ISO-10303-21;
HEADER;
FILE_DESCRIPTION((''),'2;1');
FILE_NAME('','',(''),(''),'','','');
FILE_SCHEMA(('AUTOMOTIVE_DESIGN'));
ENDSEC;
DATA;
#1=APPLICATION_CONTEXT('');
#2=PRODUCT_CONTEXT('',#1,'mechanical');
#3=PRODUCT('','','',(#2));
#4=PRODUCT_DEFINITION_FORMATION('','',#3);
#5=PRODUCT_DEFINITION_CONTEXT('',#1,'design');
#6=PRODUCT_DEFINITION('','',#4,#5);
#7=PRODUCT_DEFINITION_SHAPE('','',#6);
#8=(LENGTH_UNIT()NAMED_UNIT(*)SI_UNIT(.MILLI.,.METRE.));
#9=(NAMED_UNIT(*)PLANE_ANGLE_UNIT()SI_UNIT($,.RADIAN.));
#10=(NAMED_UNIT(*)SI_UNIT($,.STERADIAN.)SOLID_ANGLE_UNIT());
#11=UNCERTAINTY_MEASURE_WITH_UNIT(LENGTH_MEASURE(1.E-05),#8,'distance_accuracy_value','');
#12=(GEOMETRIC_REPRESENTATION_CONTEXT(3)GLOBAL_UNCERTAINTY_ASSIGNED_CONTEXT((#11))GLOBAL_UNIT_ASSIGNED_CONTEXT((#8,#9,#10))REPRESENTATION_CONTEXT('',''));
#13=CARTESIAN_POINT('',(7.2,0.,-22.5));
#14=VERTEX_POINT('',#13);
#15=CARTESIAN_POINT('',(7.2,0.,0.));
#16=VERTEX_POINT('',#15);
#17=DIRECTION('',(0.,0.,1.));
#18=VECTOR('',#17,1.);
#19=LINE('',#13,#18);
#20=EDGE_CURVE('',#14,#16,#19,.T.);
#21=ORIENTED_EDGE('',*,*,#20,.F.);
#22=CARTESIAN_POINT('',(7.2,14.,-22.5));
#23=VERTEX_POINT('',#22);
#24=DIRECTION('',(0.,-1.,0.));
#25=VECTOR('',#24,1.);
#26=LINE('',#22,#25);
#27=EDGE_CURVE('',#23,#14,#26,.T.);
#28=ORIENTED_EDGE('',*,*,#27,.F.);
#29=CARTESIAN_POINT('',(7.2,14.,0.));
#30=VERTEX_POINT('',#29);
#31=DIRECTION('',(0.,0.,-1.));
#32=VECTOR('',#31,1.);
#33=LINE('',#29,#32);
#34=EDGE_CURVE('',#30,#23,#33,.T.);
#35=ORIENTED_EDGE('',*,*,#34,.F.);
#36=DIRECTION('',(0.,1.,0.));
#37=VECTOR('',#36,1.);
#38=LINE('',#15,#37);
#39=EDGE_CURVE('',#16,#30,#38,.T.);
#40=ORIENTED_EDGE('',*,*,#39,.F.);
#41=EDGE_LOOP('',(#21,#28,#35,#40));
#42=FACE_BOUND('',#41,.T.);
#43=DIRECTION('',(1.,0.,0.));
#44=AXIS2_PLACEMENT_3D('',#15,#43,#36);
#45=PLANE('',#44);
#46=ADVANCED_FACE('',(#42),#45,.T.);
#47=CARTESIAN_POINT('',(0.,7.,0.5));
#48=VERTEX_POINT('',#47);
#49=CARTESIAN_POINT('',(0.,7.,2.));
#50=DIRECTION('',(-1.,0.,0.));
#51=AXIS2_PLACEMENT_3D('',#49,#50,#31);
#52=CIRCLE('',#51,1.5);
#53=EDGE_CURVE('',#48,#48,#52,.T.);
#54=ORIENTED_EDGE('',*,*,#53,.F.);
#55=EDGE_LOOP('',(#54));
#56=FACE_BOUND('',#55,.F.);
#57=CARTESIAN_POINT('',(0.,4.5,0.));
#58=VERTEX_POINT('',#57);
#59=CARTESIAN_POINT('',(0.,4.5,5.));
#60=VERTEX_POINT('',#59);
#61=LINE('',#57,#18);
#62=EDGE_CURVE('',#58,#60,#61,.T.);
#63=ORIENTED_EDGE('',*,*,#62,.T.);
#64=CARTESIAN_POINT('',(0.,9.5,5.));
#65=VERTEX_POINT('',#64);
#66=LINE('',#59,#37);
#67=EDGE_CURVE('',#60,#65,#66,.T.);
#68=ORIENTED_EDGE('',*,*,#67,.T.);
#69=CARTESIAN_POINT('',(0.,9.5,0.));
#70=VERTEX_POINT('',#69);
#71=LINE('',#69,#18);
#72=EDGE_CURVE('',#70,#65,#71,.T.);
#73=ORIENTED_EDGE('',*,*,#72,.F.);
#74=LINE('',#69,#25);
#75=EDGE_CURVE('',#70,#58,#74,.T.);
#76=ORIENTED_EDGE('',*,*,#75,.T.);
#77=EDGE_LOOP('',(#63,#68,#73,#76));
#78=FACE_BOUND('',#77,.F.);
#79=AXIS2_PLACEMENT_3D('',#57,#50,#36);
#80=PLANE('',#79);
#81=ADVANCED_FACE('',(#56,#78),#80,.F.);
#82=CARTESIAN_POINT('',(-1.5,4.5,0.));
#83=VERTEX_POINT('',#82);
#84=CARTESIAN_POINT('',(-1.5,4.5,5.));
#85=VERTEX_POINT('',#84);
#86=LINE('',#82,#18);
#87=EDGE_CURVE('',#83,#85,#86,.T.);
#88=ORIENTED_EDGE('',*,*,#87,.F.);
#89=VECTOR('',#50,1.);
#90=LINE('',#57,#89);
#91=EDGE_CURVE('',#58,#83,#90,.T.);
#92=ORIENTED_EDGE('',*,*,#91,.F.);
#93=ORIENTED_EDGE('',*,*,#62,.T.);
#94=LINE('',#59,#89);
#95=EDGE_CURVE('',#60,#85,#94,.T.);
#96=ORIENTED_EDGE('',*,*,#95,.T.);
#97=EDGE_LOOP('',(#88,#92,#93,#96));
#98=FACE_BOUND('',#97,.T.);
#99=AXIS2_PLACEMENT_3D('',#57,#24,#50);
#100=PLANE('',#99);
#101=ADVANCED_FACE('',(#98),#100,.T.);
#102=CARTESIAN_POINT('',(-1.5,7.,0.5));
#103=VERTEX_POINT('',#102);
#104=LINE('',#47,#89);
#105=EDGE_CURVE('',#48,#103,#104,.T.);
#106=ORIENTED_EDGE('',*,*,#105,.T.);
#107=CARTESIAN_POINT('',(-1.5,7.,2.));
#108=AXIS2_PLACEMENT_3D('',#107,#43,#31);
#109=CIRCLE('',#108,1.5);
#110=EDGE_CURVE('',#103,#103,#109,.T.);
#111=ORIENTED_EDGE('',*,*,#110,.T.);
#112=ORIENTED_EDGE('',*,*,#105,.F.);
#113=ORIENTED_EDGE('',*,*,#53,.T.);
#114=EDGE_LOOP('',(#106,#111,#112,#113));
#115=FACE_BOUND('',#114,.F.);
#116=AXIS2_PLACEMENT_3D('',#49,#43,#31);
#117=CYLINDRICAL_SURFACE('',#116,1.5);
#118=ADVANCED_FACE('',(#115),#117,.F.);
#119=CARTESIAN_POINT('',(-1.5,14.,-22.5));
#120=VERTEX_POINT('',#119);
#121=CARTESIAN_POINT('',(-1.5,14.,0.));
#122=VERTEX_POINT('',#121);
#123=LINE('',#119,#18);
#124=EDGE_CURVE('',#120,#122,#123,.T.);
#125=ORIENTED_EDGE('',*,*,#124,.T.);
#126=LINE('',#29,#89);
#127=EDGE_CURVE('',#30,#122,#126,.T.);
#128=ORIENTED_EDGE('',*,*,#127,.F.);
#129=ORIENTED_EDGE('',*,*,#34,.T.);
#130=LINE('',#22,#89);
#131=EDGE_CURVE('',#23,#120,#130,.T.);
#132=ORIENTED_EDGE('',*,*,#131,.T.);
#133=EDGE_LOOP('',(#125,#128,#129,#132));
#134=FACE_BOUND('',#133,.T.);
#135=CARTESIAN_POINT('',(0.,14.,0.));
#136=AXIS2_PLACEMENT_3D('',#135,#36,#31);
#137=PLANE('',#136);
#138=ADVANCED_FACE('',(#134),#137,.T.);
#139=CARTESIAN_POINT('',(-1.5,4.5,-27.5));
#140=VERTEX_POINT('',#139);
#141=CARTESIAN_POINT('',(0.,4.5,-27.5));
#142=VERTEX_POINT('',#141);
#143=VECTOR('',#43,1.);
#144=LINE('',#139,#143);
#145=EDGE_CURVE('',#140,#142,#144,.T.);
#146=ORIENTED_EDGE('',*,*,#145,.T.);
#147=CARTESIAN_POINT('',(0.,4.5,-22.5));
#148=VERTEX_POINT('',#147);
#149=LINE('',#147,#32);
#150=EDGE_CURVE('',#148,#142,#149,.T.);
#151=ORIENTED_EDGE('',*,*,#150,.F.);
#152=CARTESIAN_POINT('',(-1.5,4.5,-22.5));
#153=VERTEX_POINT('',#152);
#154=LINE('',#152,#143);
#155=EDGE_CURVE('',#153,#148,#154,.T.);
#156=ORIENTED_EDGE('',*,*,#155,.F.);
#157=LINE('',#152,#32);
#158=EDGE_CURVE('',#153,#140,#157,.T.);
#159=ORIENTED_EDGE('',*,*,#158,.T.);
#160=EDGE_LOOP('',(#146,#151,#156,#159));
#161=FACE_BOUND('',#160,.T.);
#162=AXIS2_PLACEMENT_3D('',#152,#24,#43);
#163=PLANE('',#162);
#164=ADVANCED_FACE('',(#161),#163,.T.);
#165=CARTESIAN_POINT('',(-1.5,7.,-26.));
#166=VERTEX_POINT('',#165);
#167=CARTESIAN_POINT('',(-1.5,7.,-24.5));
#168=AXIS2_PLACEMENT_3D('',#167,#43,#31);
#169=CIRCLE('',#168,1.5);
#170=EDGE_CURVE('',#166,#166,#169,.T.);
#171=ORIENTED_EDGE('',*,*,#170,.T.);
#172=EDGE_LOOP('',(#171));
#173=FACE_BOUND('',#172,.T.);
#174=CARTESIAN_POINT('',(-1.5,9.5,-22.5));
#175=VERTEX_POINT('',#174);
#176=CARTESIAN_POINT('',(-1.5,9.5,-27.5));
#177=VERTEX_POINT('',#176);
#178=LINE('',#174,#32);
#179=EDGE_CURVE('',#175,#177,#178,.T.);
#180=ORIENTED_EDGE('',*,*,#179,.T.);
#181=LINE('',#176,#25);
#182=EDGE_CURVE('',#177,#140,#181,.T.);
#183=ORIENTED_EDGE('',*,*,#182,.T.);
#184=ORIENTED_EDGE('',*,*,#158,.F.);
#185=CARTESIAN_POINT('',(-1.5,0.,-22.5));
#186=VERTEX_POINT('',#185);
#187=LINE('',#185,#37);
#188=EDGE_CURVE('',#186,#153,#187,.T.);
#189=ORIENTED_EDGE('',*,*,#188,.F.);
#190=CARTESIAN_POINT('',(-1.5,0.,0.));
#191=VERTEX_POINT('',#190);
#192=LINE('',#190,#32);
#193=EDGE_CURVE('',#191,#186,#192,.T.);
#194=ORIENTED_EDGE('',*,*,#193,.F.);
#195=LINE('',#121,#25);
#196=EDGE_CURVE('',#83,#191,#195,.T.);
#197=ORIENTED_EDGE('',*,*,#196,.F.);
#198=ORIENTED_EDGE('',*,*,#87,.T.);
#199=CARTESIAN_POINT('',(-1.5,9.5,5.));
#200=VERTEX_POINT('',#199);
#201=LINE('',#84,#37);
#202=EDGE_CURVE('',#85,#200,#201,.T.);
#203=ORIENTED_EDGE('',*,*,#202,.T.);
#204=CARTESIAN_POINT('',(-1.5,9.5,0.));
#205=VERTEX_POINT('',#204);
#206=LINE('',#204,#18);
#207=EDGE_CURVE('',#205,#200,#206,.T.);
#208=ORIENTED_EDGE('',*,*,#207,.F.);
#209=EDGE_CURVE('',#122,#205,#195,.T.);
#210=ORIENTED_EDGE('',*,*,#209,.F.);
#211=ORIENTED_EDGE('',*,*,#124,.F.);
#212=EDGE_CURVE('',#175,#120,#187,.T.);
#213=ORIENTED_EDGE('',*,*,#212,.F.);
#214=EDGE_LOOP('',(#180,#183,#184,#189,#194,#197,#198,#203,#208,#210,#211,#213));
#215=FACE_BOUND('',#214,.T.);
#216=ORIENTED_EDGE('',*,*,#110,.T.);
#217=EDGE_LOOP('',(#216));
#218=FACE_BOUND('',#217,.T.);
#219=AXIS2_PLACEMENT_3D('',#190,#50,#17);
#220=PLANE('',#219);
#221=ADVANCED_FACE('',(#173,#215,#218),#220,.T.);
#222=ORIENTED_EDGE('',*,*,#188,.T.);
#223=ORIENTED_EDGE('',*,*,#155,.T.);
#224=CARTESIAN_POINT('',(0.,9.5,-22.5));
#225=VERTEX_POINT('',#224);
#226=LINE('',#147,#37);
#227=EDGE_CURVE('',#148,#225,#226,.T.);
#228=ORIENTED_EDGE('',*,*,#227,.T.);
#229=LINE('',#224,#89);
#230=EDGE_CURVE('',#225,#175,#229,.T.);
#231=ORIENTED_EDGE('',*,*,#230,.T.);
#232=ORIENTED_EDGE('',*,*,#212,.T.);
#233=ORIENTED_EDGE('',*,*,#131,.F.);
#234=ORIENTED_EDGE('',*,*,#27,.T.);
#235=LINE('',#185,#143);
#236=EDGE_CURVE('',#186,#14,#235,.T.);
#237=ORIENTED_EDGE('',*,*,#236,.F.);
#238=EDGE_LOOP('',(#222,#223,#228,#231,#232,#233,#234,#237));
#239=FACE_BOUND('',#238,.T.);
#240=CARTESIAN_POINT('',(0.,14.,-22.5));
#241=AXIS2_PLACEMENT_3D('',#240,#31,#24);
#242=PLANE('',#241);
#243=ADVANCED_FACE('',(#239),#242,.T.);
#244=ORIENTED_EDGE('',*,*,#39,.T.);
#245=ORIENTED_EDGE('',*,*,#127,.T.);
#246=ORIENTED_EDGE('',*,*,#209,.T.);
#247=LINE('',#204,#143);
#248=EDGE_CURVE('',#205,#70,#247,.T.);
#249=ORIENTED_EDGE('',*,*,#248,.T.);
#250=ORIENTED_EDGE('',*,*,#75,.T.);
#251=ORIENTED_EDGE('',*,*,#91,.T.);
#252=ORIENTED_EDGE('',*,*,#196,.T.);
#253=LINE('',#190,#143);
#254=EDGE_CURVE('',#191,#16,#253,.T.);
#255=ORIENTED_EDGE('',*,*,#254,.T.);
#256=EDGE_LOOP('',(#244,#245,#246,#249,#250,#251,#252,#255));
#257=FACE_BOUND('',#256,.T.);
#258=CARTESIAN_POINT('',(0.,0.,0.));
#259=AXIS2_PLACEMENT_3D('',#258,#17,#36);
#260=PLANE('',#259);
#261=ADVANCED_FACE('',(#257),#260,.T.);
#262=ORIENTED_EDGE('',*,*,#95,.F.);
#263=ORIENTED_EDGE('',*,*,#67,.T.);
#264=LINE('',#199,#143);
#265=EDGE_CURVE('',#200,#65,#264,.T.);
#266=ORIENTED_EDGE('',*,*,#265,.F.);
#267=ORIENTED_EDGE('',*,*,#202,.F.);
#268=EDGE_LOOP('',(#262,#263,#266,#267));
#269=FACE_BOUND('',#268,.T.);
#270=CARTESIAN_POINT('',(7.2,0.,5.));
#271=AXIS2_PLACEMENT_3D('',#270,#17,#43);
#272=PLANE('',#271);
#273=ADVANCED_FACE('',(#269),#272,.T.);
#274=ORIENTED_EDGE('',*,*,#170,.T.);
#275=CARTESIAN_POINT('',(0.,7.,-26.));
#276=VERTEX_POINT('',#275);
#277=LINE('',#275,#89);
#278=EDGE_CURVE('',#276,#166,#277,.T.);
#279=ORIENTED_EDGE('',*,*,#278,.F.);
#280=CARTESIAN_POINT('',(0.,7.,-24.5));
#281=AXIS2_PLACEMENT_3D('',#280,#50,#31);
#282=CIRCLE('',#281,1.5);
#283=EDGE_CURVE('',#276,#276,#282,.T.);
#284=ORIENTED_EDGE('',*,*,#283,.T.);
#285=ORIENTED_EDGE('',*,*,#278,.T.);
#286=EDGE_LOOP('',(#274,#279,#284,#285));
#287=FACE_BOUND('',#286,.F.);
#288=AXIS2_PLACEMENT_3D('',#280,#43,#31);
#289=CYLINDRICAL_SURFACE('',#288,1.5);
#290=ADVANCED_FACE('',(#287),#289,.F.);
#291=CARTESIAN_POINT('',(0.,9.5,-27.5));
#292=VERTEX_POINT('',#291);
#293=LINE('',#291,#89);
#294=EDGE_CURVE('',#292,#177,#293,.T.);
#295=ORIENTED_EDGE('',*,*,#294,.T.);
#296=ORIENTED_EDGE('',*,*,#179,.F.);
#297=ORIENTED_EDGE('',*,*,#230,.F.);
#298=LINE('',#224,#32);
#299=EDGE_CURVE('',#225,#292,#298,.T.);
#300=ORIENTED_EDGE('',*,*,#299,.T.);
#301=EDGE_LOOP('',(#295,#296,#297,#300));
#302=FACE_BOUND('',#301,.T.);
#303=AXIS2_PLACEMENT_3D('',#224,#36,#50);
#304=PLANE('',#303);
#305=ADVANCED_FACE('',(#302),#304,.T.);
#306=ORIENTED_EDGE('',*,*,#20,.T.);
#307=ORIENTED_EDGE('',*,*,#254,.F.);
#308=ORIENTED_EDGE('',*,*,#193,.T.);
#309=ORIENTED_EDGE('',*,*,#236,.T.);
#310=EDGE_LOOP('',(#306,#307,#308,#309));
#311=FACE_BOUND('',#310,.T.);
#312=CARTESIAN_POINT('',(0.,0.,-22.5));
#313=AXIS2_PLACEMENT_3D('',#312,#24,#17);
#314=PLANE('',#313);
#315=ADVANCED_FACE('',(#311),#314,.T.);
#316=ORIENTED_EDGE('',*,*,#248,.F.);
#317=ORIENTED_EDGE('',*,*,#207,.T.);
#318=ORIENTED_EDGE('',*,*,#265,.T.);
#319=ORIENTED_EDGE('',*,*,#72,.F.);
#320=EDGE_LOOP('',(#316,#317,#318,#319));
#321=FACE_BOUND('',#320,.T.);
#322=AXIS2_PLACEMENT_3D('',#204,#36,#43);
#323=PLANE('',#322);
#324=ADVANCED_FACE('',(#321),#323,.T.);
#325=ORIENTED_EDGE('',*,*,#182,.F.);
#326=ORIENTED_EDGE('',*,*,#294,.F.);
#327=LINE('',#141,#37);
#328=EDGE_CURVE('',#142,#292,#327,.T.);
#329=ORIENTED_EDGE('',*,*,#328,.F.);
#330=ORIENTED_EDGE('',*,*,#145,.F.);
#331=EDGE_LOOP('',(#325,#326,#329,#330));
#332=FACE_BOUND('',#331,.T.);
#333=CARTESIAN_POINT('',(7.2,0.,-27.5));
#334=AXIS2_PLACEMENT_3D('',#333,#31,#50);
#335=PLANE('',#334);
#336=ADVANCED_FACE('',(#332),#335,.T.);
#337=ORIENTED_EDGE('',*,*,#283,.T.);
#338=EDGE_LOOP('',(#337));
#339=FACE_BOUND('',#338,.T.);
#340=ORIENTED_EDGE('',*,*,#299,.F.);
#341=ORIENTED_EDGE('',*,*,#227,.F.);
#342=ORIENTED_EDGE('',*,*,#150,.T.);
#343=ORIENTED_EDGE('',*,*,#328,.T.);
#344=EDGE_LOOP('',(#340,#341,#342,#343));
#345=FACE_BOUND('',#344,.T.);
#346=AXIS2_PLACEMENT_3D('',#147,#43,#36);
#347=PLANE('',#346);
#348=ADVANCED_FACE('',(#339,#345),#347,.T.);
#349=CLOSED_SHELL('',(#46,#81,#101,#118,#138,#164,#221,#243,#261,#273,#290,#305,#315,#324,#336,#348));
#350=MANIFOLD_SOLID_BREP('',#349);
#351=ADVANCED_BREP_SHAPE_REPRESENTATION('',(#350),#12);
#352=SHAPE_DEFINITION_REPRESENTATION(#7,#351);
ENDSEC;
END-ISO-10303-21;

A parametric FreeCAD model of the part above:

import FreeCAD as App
import Part
import Sketcher
from FreeCAD import Vector
Q = App.Units.Quantity


def add_polygon(sketch, points):
    """Adds a closed chain of lines whose ends are joined by coincident constraints."""
    first, n = sketch.GeometryCount, len(points)
    for a, b in zip(points, points[1:] + points[:1]):
        sketch.addGeometry(Part.LineSegment(App.Vector(*a, 0), App.Vector(*b, 0)), False)
    for i in range(n):
        sketch.addConstraint(Sketcher.Constraint("Coincident", first + i, 2, first + (i + 1) % n, 1))

doc = App.newDocument("Part")
body = doc.addObject("PartDesign::Body", "Body")

sketch1 = doc.addObject("Sketcher::SketchObject", "Sketch")
body.addObject(sketch1)
sketch1.AttachmentSupport = (doc.YZ_Plane, [""])
sketch1.MapMode = "FlatFace"
add_polygon(sketch1, [(14, 0), (0, 0), (0, -22), (14, -22)])
sketch1.addConstraint(Sketcher.Constraint("Horizontal", 0))
sketch1.addConstraint(Sketcher.Constraint("Vertical", 1))
sketch1.addConstraint(Sketcher.Constraint("Horizontal", 2))
sketch1.addConstraint(Sketcher.Constraint("Vertical", 3))
sketch1.addConstraint(Sketcher.Constraint("Coincident", 0, 2, -1, 1))
sketch1.addConstraint(Sketcher.Constraint("DistanceX", 0, 2, 0, 1, Q("14 mm")))
sketch1.addConstraint(Sketcher.Constraint("DistanceY", 1, 2, 1, 1, Q("22.5 mm")))
pad1 = doc.addObject("PartDesign::Pad", "Pad")
body.addObject(pad1)
pad1.Profile = sketch1
pad1.Length = 7.2

sketch2 = doc.addObject("Sketcher::SketchObject", "Sketch001")
body.addObject(sketch2)
sketch2.AttachmentSupport = (doc.YZ_Plane, [""])
sketch2.MapMode = "FlatFace"
add_polygon(sketch2, [(14, -22), (0, -22), (0, 0), (14, 0)])
sketch2.addConstraint(Sketcher.Constraint("Horizontal", 0))
sketch2.addConstraint(Sketcher.Constraint("Vertical", 1))
sketch2.addConstraint(Sketcher.Constraint("Horizontal", 2))
sketch2.addConstraint(Sketcher.Constraint("Vertical", 3))
sketch2.addConstraint(Sketcher.Constraint("Coincident", 1, 2, -1, 1))
sketch2.addConstraint(Sketcher.Constraint("DistanceX", 0, 2, 0, 1, Q("14 mm")))
sketch2.addConstraint(Sketcher.Constraint("DistanceY", 1, 1, 1, 2, Q("22.5 mm")))
pad2 = doc.addObject("PartDesign::Pad", "Pad001")
body.addObject(pad2)
pad2.Profile = sketch2
pad2.Length = 1.5
pad2.Reversed = True

sketch3 = doc.addObject("Sketcher::SketchObject", "Sketch002")
body.addObject(sketch3)
sketch3.AttachmentSupport = (doc.XY_Plane, [""])
sketch3.MapMode = "FlatFace"
add_polygon(sketch3, [(-1.5, 4.5), (0, 4.5), (0, 9.5), (-1.5, 9.5)])
sketch3.addConstraint(Sketcher.Constraint("Horizontal", 0))
sketch3.addConstraint(Sketcher.Constraint("Vertical", 1))
sketch3.addConstraint(Sketcher.Constraint("Horizontal", 2))
sketch3.addConstraint(Sketcher.Constraint("Vertical", 3))
sketch3.addConstraint(Sketcher.Constraint("PointOnObject", 0, 2, -2))
sketch3.addConstraint(Sketcher.Constraint("DistanceY", 1, 1, 1, 2, Q("5 mm")))
sketch3.addConstraint(Sketcher.Constraint("DistanceX", 0, 1, 0, 2, Q("1.5 mm")))
sketch3.addConstraint(Sketcher.Constraint("DistanceY", -1, 1, 0, 2, Q("4.5 mm")))
pad3 = doc.addObject("PartDesign::Pad", "Pad002")
body.addObject(pad3)
pad3.Profile = sketch3
pad3.Length = 5

sketch4 = doc.addObject("Sketcher::SketchObject", "Sketch003")
body.addObject(sketch4)
sketch4.AttachmentSupport = (doc.XY_Plane, [""])
sketch4.MapMode = "FlatFace"
sketch4.AttachmentOffset = App.Placement(Vector(0, 0, -22.5), App.Rotation())
add_polygon(sketch4, [(-1.5, 4.5), (-1.5, 9.5), (0, 9.5), (0, 4.5)])
sketch4.addConstraint(Sketcher.Constraint("Vertical", 0))
sketch4.addConstraint(Sketcher.Constraint("Horizontal", 1))
sketch4.addConstraint(Sketcher.Constraint("Vertical", 2))
sketch4.addConstraint(Sketcher.Constraint("Horizontal", 3))
sketch4.addConstraint(Sketcher.Constraint("PointOnObject", 1, 2, -2))
sketch4.addConstraint(Sketcher.Constraint("DistanceY", 0, 1, 0, 2, Q("5 mm")))
sketch4.addConstraint(Sketcher.Constraint("DistanceX", 1, 1, 1, 2, Q("1.5 mm")))
sketch4.addConstraint(Sketcher.Constraint("DistanceY", -1, 1, 0, 2, Q("9.5 mm")))
pad4 = doc.addObject("PartDesign::Pad", "Pad003")
body.addObject(pad4)
pad4.Profile = sketch4
pad4.Length = 5
pad4.Reversed = True

sketch5 = doc.addObject("Sketcher::SketchObject", "Sketch004")
body.addObject(sketch5)
sketch5.AttachmentSupport = (doc.YZ_Plane, [""])
sketch5.MapMode = "FlatFace"
sketch5.addGeometry(Part.Circle(Vector(7, 2, 0), Vector(0, 0, 1), 1.5), False)
sketch5.addGeometry(Part.Circle(Vector(7, -24.5, 0), Vector(0, 0, 1), 1.5), False)
sketch5.addConstraint(Sketcher.Constraint("Equal", 0, 1))
sketch5.addConstraint(Sketcher.Constraint("Vertical", 0, 3, 1, 3))
sketch5.addConstraint(Sketcher.Constraint("Diameter", 0, Q("3 mm")))
sketch5.addConstraint(Sketcher.Constraint("DistanceX", -1, 1, 0, 3, Q("7 mm")))
sketch5.addConstraint(Sketcher.Constraint("DistanceY", -1, 1, 0, 3, Q("2 mm")))
sketch5.addConstraint(Sketcher.Constraint("DistanceY", 1, 3, -1, 1, Q("24.5 mm")))
pocket1 = doc.addObject("PartDesign::Pocket", "Pocket")
body.addObject(pocket1)
pocket1.Profile = sketch5
pocket1.Length = 5

doc.recompute()
